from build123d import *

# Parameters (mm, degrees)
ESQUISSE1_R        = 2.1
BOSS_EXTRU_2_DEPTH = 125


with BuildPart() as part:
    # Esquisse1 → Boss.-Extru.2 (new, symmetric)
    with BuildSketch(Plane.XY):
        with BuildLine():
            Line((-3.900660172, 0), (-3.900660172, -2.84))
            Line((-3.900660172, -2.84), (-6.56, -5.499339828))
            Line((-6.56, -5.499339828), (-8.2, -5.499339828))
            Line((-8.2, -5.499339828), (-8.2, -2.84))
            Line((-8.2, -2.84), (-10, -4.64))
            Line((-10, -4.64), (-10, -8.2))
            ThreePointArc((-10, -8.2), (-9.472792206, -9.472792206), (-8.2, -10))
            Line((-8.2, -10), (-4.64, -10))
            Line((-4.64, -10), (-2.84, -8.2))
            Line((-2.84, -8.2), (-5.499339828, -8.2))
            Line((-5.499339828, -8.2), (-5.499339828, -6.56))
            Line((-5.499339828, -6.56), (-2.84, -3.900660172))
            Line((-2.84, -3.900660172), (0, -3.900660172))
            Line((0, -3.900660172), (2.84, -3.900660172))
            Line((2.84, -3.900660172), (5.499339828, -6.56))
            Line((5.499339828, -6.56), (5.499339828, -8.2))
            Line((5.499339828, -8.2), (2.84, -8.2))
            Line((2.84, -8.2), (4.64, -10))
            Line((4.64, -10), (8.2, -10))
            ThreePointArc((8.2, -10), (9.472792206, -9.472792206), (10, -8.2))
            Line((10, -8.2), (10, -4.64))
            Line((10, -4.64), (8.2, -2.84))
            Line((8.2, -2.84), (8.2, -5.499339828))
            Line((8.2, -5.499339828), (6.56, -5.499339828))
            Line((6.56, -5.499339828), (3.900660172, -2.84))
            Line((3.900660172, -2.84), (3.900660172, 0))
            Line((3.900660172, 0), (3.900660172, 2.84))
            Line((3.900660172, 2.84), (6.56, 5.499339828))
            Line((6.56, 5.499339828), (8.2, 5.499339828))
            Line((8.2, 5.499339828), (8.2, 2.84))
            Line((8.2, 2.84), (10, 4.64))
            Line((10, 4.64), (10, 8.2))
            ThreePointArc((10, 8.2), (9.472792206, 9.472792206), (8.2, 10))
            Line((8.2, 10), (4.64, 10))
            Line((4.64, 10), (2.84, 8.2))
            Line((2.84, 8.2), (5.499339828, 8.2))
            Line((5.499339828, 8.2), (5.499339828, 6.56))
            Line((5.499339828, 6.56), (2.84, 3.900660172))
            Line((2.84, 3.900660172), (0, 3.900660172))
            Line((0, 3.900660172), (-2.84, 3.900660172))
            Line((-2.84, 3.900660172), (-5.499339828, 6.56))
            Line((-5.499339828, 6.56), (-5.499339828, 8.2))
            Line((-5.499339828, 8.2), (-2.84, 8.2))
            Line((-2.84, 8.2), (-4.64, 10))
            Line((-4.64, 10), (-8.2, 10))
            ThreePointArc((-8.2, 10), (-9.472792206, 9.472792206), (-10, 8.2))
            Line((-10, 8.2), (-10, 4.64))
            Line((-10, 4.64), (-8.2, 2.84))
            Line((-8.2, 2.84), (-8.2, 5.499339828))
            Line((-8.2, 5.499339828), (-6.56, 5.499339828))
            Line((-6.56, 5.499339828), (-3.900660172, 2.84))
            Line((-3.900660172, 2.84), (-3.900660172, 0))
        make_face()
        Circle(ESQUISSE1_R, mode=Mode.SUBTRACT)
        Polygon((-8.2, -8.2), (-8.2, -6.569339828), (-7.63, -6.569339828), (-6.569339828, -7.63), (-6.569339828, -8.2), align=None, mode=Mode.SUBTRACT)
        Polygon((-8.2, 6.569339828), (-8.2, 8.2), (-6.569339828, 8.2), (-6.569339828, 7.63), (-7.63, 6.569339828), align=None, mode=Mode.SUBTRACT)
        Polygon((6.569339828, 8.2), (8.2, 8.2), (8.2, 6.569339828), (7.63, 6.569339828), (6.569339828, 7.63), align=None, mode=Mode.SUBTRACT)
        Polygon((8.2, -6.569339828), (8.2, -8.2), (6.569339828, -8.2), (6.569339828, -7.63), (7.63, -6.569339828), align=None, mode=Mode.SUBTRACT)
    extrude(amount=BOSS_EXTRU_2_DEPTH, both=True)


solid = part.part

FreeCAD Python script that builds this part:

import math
import FreeCAD as App
import Part
import Sketcher
from FreeCAD import Vector

doc = App.newDocument("Part")
body = doc.addObject("PartDesign::Body", "Body")

sketch1 = body.newObject("Sketcher::SketchObject", "Sketch")
sketch1.AttachmentSupport = (doc.getObject("XY_Plane"), [""])
sketch1.MapMode = "FlatFace"
sketch1.addGeometry([
    Part.LineSegment(Vector(-3.90066, -2.84, 0), Vector(-6.56, -5.49934, 0)),
    Part.LineSegment(Vector(-6.56, -5.49934, 0), Vector(-8.2, -5.49934, 0)),
    Part.LineSegment(Vector(-8.2, -5.49934, 0), Vector(-8.2, -2.84, 0)),
    Part.LineSegment(Vector(-8.2, -2.84, 0), Vector(-10, -4.64, 0)),
    Part.LineSegment(Vector(-10, -4.64, 0), Vector(-10, -8.2, 0)),
    Part.ArcOfCircle(Part.Circle(Vector(-8.2, -8.2, 0), Vector(0, 0, 1), 1.8), math.radians(180), math.radians(270)),
    Part.LineSegment(Vector(-8.2, -10, 0), Vector(-4.64, -10, 0)),
    Part.LineSegment(Vector(-4.64, -10, 0), Vector(-2.84, -8.2, 0)),
    Part.LineSegment(Vector(-2.84, -8.2, 0), Vector(-5.49934, -8.2, 0)),
    Part.LineSegment(Vector(-5.49934, -8.2, 0), Vector(-5.49934, -6.56, 0)),
    Part.LineSegment(Vector(-5.49934, -6.56, 0), Vector(-2.84, -3.90066, 0)),
    Part.LineSegment(Vector(-2.84, -3.90066, 0), Vector(2.84, -3.90066, 0)),
    Part.LineSegment(Vector(2.84, -3.90066, 0), Vector(5.49934, -6.56, 0)),
    Part.LineSegment(Vector(5.49934, -6.56, 0), Vector(5.49934, -8.2, 0)),
    Part.LineSegment(Vector(5.49934, -8.2, 0), Vector(2.84, -8.2, 0)),
    Part.LineSegment(Vector(2.84, -8.2, 0), Vector(4.64, -10, 0)),
    Part.LineSegment(Vector(4.64, -10, 0), Vector(8.2, -10, 0)),
    Part.ArcOfCircle(Part.Circle(Vector(8.2, -8.2, 0), Vector(0, 0, 1), 1.8), math.radians(-90), math.radians(0)),
    Part.LineSegment(Vector(10, -8.2, 0), Vector(10, -4.64, 0)),
    Part.LineSegment(Vector(10, -4.64, 0), Vector(8.2, -2.84, 0)),
    Part.LineSegment(Vector(8.2, -2.84, 0), Vector(8.2, -5.49934, 0)),
    Part.LineSegment(Vector(8.2, -5.49934, 0), Vector(6.56, -5.49934, 0)),
    Part.LineSegment(Vector(6.56, -5.49934, 0), Vector(3.90066, -2.84, 0)),
    Part.LineSegment(Vector(3.90066, -2.84, 0), Vector(3.90066, 2.84, 0)),
    Part.LineSegment(Vector(3.90066, 2.84, 0), Vector(6.56, 5.49934, 0)),
    Part.LineSegment(Vector(6.56, 5.49934, 0), Vector(8.2, 5.49934, 0)),
    Part.LineSegment(Vector(8.2, 5.49934, 0), Vector(8.2, 2.84, 0)),
    Part.LineSegment(Vector(8.2, 2.84, 0), Vector(10, 4.64, 0)),
    Part.LineSegment(Vector(10, 4.64, 0), Vector(10, 8.2, 0)),
    Part.ArcOfCircle(Part.Circle(Vector(8.2, 8.2, 0), Vector(0, 0, 1), 1.8), math.radians(0), math.radians(90)),
    Part.LineSegment(Vector(8.2, 10, 0), Vector(4.64, 10, 0)),
    Part.LineSegment(Vector(4.64, 10, 0), Vector(2.84, 8.2, 0)),
    Part.LineSegment(Vector(2.84, 8.2, 0), Vector(5.49934, 8.2, 0)),
    Part.LineSegment(Vector(5.49934, 8.2, 0), Vector(5.49934, 6.56, 0)),
    Part.LineSegment(Vector(5.49934, 6.56, 0), Vector(2.84, 3.90066, 0)),
    Part.LineSegment(Vector(2.84, 3.90066, 0), Vector(-2.84, 3.90066, 0)),
    Part.LineSegment(Vector(-2.84, 3.90066, 0), Vector(-5.49934, 6.56, 0)),
    Part.LineSegment(Vector(-5.49934, 6.56, 0), Vector(-5.49934, 8.2, 0)),
    Part.LineSegment(Vector(-5.49934, 8.2, 0), Vector(-2.84, 8.2, 0)),
    Part.LineSegment(Vector(-2.84, 8.2, 0), Vector(-4.64, 10, 0)),
    Part.LineSegment(Vector(-4.64, 10, 0), Vector(-8.2, 10, 0)),
    Part.ArcOfCircle(Part.Circle(Vector(-8.2, 8.2, 0), Vector(0, 0, 1), 1.8), math.radians(90), math.radians(180)),
    Part.LineSegment(Vector(-10, 8.2, 0), Vector(-10, 4.64, 0)),
    Part.LineSegment(Vector(-10, 4.64, 0), Vector(-8.2, 2.84, 0)),
    Part.LineSegment(Vector(-8.2, 2.84, 0), Vector(-8.2, 5.49934, 0)),
    Part.LineSegment(Vector(-8.2, 5.49934, 0), Vector(-6.56, 5.49934, 0)),
    Part.LineSegment(Vector(-6.56, 5.49934, 0), Vector(-3.90066, 2.84, 0)),
    Part.LineSegment(Vector(-3.90066, 2.84, 0), Vector(-3.90066, -2.84, 0)),
    Part.LineSegment(Vector(-6.56934, -8.2, 0), Vector(-8.2, -8.2, 0)),
    Part.LineSegment(Vector(-8.2, -8.2, 0), Vector(-8.2, -6.56934, 0)),
    Part.LineSegment(Vector(-8.2, -6.56934, 0), Vector(-7.63, -6.56934, 0)),
    Part.LineSegment(Vector(-7.63, -6.56934, 0), Vector(-6.56934, -7.63, 0)),
    Part.LineSegment(Vector(-6.56934, -7.63, 0), Vector(-6.56934, -8.2, 0)),
    Part.LineSegment(Vector(7.63, -6.56934, 0), Vector(8.2, -6.56934, 0)),
    Part.LineSegment(Vector(8.2, -6.56934, 0), Vector(8.2, -8.2, 0)),
    Part.LineSegment(Vector(8.2, -8.2, 0), Vector(6.56934, -8.2, 0)),
    Part.LineSegment(Vector(6.56934, -8.2, 0), Vector(6.56934, -7.63, 0)),
    Part.LineSegment(Vector(6.56934, -7.63, 0), Vector(7.63, -6.56934, 0)),
    Part.LineSegment(Vector(-7.63, 6.56934, 0), Vector(-8.2, 6.56934, 0)),
    Part.LineSegment(Vector(-8.2, 6.56934, 0), Vector(-8.2, 8.2, 0)),
    Part.LineSegment(Vector(-8.2, 8.2, 0), Vector(-6.56934, 8.2, 0)),
    Part.LineSegment(Vector(-6.56934, 8.2, 0), Vector(-6.56934, 7.63, 0)),
    Part.LineSegment(Vector(-6.56934, 7.63, 0), Vector(-7.63, 6.56934, 0)),
    Part.Circle(Vector(0, 0, 0), Vector(0, 0, 1), 2.1),
    Part.LineSegment(Vector(6.56934, 7.63, 0), Vector(6.56934, 8.2, 0)),
    Part.LineSegment(Vector(6.56934, 8.2, 0), Vector(8.2, 8.2, 0)),
    Part.LineSegment(Vector(8.2, 8.2, 0), Vector(8.2, 6.56934, 0)),
    Part.LineSegment(Vector(8.2, 6.56934, 0), Vector(7.63, 6.56934, 0)),
    Part.LineSegment(Vector(7.63, 6.56934, 0), Vector(6.56934, 7.63, 0)),
], False)
sketch1.addConstraint([
    Sketcher.Constraint("Coincident", 0, 2, 1, 1),
    Sketcher.Constraint("Coincident", 1, 2, 2, 1),
    Sketcher.Constraint("Coincident", 2, 2, 3, 1),
    Sketcher.Constraint("Coincident", 3, 2, 4, 1),
    Sketcher.Constraint("Tangent", 4, 2, 5, 1),
    Sketcher.Constraint("Tangent", 5, 2, 6, 1),
    Sketcher.Constraint("Coincident", 6, 2, 7, 1),
    Sketcher.Constraint("Coincident", 7, 2, 8, 1),
    Sketcher.Constraint("Coincident", 8, 2, 9, 1),
    Sketcher.Constraint("Coincident", 9, 2, 10, 1),
    Sketcher.Constraint("Coincident", 10, 2, 11, 1),
    Sketcher.Constraint("Coincident", 11, 2, 12, 1),
    Sketcher.Constraint("Coincident", 12, 2, 13, 1),
    Sketcher.Constraint("Coincident", 13, 2, 14, 1),
    Sketcher.Constraint("Coincident", 14, 2, 15, 1),
    Sketcher.Constraint("Coincident", 15, 2, 16, 1),
    Sketcher.Constraint("Tangent", 16, 2, 17, 1),
    Sketcher.Constraint("Tangent", 17, 2, 18, 1),
    Sketcher.Constraint("Coincident", 18, 2, 19, 1),
    Sketcher.Constraint("Coincident", 19, 2, 20, 1),
    Sketcher.Constraint("Coincident", 20, 2, 21, 1),
    Sketcher.Constraint("Coincident", 21, 2, 22, 1),
    Sketcher.Constraint("Coincident", 22, 2, 23, 1),
    Sketcher.Constraint("Coincident", 23, 2, 24, 1),
    Sketcher.Constraint("Coincident", 24, 2, 25, 1),
    Sketcher.Constraint("Coincident", 25, 2, 26, 1),
    Sketcher.Constraint("Coincident", 26, 2, 27, 1),
    Sketcher.Constraint("Coincident", 27, 2, 28, 1),
    Sketcher.Constraint("Tangent", 28, 2, 29, 1),
    Sketcher.Constraint("Tangent", 29, 2, 30, 1),
    Sketcher.Constraint("Coincident", 30, 2, 31, 1),
    Sketcher.Constraint("Coincident", 31, 2, 32, 1),
    Sketcher.Constraint("Coincident", 32, 2, 33, 1),
    Sketcher.Constraint("Coincident", 33, 2, 34, 1),
    Sketcher.Constraint("Coincident", 34, 2, 35, 1),
    Sketcher.Constraint("Coincident", 35, 2, 36, 1),
    Sketcher.Constraint("Coincident", 36, 2, 37, 1),
    Sketcher.Constraint("Coincident", 37, 2, 38, 1),
    Sketcher.Constraint("Coincident", 38, 2, 39, 1),
    Sketcher.Constraint("Coincident", 39, 2, 40, 1),
    Sketcher.Constraint("Tangent", 40, 2, 41, 1),
    Sketcher.Constraint("Tangent", 41, 2, 42, 1),
    Sketcher.Constraint("Coincident", 42, 2, 43, 1),
    Sketcher.Constraint("Coincident", 43, 2, 44, 1),
    Sketcher.Constraint("Coincident", 44, 2, 45, 1),
    Sketcher.Constraint("Coincident", 45, 2, 46, 1),
    Sketcher.Constraint("Coincident", 46, 2, 47, 1),
    Sketcher.Constraint("Coincident", 47, 2, 0, 1),
    Sketcher.Constraint("Coincident", 48, 2, 49, 1),
    Sketcher.Constraint("Coincident", 49, 2, 50, 1),
    Sketcher.Constraint("Coincident", 50, 2, 51, 1),
    Sketcher.Constraint("Coincident", 51, 2, 52, 1),
    Sketcher.Constraint("Coincident", 52, 2, 48, 1),
    Sketcher.Constraint("Coincident", 53, 2, 54, 1),
    Sketcher.Constraint("Coincident", 54, 2, 55, 1),
    Sketcher.Constraint("Coincident", 55, 2, 56, 1),
    Sketcher.Constraint("Coincident", 56, 2, 57, 1),
    Sketcher.Constraint("Coincident", 57, 2, 53, 1),
    Sketcher.Constraint("Coincident", 58, 2, 59, 1),
    Sketcher.Constraint("Coincident", 59, 2, 60, 1),
    Sketcher.Constraint("Coincident", 60, 2, 61, 1),
    Sketcher.Constraint("Coincident", 61, 2, 62, 1),
    Sketcher.Constraint("Coincident", 62, 2, 58, 1),
    Sketcher.Constraint("Coincident", 64, 2, 65, 1),
    Sketcher.Constraint("Coincident", 65, 2, 66, 1),
    Sketcher.Constraint("Coincident", 66, 2, 67, 1),
    Sketcher.Constraint("Coincident", 67, 2, 68, 1),
    Sketcher.Constraint("Coincident", 68, 2, 64, 1),
    Sketcher.Constraint("Horizontal", 1),
    Sketcher.Constraint("Vertical", 2),
    Sketcher.Constraint("Vertical", 4),
    Sketcher.Constraint("Horizontal", 6),
    Sketcher.Constraint("Horizontal", 8),
    Sketcher.Constraint("Vertical", 9),
    Sketcher.Constraint("Horizontal", 11),
    Sketcher.Constraint("Vertical", 13),
    Sketcher.Constraint("Horizontal", 14),
    Sketcher.Constraint("Horizontal", 16),
    Sketcher.Constraint("Vertical", 18),
    Sketcher.Constraint("Vertical", 20),
    Sketcher.Constraint("Horizontal", 21),
    Sketcher.Constraint("Vertical", 23),
    Sketcher.Constraint("Horizontal", 25),
    Sketcher.Constraint("Vertical", 26),
    Sketcher.Constraint("Vertical", 28),
    Sketcher.Constraint("Horizontal", 30),
    Sketcher.Constraint("Horizontal", 32),
    Sketcher.Constraint("Vertical", 33),
    Sketcher.Constraint("Horizontal", 35),
    Sketcher.Constraint("Vertical", 37),
    Sketcher.Constraint("Horizontal", 38),
    Sketcher.Constraint("Horizontal", 40),
    Sketcher.Constraint("Vertical", 42),
    Sketcher.Constraint("Vertical", 44),
    Sketcher.Constraint("Horizontal", 45),
    Sketcher.Constraint("Vertical", 47),
    Sketcher.Constraint("Horizontal", 48),
    Sketcher.Constraint("Vertical", 49),
    Sketcher.Constraint("Horizontal", 50),
    Sketcher.Constraint("Vertical", 52),
    Sketcher.Constraint("Horizontal", 53),
    Sketcher.Constraint("Vertical", 54),
    Sketcher.Constraint("Horizontal", 55),
    Sketcher.Constraint("Vertical", 56),
    Sketcher.Constraint("Horizontal", 58),
    Sketcher.Constraint("Vertical", 59),
    Sketcher.Constraint("Horizontal", 60),
    Sketcher.Constraint("Vertical", 61),
    Sketcher.Constraint("Vertical", 64),
    Sketcher.Constraint("Horizontal", 65),
    Sketcher.Constraint("Vertical", 66),
    Sketcher.Constraint("Horizontal", 67),
    Sketcher.Constraint("Coincident", 63, 3, -1, 1),
    Sketcher.Constraint("Coincident", 48, 2, 5, 3),
    Sketcher.Constraint("Coincident", 54, 2, 17, 3),
    Sketcher.Constraint("Coincident", 59, 2, 41, 3),
    Sketcher.Constraint("Coincident", 65, 2, 29, 3),
    Sketcher.Constraint("Equal", 5, 17),
    Sketcher.Constraint("Equal", 17, 29),
    Sketcher.Constraint("Equal", 29, 41),
    Sketcher.Constraint("Symmetric", 5, 3, 29, 3, -1, 1),
    Sketcher.Constraint("Symmetric", 17, 3, 41, 3, -1, 1),
    Sketcher.Constraint("Symmetric", 0, 2, 24, 2, -1, 1),
    Sketcher.Constraint("Symmetric", 2, 2, 26, 2, -1, 1),
    Sketcher.Constraint("Symmetric", 7, 2, 31, 2, -1, 1),
    Sketcher.Constraint("Symmetric", 9, 2, 33, 2, -1, 1),
    Sketcher.Constraint("Symmetric", 10, 2, 34, 2, -1, 1),
    Sketcher.Constraint("Symmetric", 12, 2, 36, 2, -1, 1),
    Sketcher.Constraint("Symmetric", 14, 2, 38, 2, -1, 1),
    Sketcher.Constraint("Symmetric", 19, 2, 43, 2, -1, 1),
    Sketcher.Constraint("Symmetric", 21, 2, 45, 2, -1, 1),
    Sketcher.Constraint("Symmetric", 22, 2, 46, 2, -1, 1),
    Sketcher.Constraint("Symmetric", 56, 2, 61, 2, -1, 1),
    Sketcher.Constraint("Symmetric", 57, 2, 62, 2, -1, 1),
    Sketcher.Constraint("Symmetric", 50, 2, 67, 2, -1, 1),
    Sketcher.Constraint("Symmetric", 51, 2, 68, 2, -1, 1),
    Sketcher.Constraint("Symmetric", 5, 3, 17, 3, -2),
    Sketcher.Constraint("Symmetric", 9, 2, 12, 2, -2),
    Sketcher.Constraint("Symmetric", 7, 2, 14, 2, -2),
    Sketcher.Constraint("Symmetric", 2, 2, 19, 2, -2),
    Sketcher.Constraint("Symmetric", 0, 2, 21, 2, -2),
    Sketcher.Constraint("Symmetric", 51, 2, 56, 2, -2),
    Sketcher.Constraint("Symmetric", 50, 2, 57, 2, -2),
    Sketcher.Constraint("Parallel", 0, 3),
    Sketcher.Constraint("Parallel", 3, 7),
    Sketcher.Constraint("Parallel", 7, 10),
    Sketcher.Constraint("Perpendicular", 10, 12),
    Sketcher.Constraint("Parallel", 12, 15),
    Sketcher.Constraint("Parallel", 15, 19),
    Sketcher.Constraint("Parallel", 19, 22),
    Sketcher.Constraint("Perpendicular", 22, 24),
    Sketcher.Constraint("Parallel", 24, 27),
    Sketcher.Constraint("Parallel", 27, 31),
    Sketcher.Constraint("Perpendicular", 34, 36),
    Sketcher.Constraint("Parallel", 36, 39),
    Sketcher.Constraint("Parallel", 39, 43),
    Sketcher.Constraint("Parallel", 46, 51),
    Sketcher.Constraint("Perpendicular", 51, 57),
    Sketcher.Constraint("Horizontal", 4, 2, 7, 2),
    Sketcher.Constraint("Horizontal", 19, 2, 22, 2),
    Sketcher.Constraint("Vertical", 41, 3, 1, 2),
    Sketcher.Constraint("Vertical", 7, 2, 10, 2),
    Sketcher.Constraint("Equal", 38, 2),
    Sketcher.Constraint("Equal", 40, 4),
    Sketcher.Constraint("Equal", 45, 9),
    Sketcher.Constraint("Equal", 35, 23),
    Sketcher.Constraint("Equal", 65, 49),
    Sketcher.Constraint("Diameter", 63, 4.2),
    Sketcher.Constraint("Radius", 5, 1.8),
    Sketcher.Constraint("DistanceX", 3, 2, -1, 1, 10.0),
    Sketcher.Constraint("Distance", 51, 1.5),
    Sketcher.Constraint("DistanceX", 1, 2, 1, 1, 1.64),
    Sketcher.Constraint("DistanceX", 6, 1, 6, 2, 3.56),
    Sketcher.Constraint("DistanceX", 50, 1, 50, 2, 0.57),
    Sketcher.Constraint("DistanceX", 8, 2, 8, 1, 2.65934),
])
pad1 = body.newObject("PartDesign::Pad", "Pad")
pad1.Profile = sketch1
pad1.Length = 250
pad1.Midplane = True

doc.recompute()
